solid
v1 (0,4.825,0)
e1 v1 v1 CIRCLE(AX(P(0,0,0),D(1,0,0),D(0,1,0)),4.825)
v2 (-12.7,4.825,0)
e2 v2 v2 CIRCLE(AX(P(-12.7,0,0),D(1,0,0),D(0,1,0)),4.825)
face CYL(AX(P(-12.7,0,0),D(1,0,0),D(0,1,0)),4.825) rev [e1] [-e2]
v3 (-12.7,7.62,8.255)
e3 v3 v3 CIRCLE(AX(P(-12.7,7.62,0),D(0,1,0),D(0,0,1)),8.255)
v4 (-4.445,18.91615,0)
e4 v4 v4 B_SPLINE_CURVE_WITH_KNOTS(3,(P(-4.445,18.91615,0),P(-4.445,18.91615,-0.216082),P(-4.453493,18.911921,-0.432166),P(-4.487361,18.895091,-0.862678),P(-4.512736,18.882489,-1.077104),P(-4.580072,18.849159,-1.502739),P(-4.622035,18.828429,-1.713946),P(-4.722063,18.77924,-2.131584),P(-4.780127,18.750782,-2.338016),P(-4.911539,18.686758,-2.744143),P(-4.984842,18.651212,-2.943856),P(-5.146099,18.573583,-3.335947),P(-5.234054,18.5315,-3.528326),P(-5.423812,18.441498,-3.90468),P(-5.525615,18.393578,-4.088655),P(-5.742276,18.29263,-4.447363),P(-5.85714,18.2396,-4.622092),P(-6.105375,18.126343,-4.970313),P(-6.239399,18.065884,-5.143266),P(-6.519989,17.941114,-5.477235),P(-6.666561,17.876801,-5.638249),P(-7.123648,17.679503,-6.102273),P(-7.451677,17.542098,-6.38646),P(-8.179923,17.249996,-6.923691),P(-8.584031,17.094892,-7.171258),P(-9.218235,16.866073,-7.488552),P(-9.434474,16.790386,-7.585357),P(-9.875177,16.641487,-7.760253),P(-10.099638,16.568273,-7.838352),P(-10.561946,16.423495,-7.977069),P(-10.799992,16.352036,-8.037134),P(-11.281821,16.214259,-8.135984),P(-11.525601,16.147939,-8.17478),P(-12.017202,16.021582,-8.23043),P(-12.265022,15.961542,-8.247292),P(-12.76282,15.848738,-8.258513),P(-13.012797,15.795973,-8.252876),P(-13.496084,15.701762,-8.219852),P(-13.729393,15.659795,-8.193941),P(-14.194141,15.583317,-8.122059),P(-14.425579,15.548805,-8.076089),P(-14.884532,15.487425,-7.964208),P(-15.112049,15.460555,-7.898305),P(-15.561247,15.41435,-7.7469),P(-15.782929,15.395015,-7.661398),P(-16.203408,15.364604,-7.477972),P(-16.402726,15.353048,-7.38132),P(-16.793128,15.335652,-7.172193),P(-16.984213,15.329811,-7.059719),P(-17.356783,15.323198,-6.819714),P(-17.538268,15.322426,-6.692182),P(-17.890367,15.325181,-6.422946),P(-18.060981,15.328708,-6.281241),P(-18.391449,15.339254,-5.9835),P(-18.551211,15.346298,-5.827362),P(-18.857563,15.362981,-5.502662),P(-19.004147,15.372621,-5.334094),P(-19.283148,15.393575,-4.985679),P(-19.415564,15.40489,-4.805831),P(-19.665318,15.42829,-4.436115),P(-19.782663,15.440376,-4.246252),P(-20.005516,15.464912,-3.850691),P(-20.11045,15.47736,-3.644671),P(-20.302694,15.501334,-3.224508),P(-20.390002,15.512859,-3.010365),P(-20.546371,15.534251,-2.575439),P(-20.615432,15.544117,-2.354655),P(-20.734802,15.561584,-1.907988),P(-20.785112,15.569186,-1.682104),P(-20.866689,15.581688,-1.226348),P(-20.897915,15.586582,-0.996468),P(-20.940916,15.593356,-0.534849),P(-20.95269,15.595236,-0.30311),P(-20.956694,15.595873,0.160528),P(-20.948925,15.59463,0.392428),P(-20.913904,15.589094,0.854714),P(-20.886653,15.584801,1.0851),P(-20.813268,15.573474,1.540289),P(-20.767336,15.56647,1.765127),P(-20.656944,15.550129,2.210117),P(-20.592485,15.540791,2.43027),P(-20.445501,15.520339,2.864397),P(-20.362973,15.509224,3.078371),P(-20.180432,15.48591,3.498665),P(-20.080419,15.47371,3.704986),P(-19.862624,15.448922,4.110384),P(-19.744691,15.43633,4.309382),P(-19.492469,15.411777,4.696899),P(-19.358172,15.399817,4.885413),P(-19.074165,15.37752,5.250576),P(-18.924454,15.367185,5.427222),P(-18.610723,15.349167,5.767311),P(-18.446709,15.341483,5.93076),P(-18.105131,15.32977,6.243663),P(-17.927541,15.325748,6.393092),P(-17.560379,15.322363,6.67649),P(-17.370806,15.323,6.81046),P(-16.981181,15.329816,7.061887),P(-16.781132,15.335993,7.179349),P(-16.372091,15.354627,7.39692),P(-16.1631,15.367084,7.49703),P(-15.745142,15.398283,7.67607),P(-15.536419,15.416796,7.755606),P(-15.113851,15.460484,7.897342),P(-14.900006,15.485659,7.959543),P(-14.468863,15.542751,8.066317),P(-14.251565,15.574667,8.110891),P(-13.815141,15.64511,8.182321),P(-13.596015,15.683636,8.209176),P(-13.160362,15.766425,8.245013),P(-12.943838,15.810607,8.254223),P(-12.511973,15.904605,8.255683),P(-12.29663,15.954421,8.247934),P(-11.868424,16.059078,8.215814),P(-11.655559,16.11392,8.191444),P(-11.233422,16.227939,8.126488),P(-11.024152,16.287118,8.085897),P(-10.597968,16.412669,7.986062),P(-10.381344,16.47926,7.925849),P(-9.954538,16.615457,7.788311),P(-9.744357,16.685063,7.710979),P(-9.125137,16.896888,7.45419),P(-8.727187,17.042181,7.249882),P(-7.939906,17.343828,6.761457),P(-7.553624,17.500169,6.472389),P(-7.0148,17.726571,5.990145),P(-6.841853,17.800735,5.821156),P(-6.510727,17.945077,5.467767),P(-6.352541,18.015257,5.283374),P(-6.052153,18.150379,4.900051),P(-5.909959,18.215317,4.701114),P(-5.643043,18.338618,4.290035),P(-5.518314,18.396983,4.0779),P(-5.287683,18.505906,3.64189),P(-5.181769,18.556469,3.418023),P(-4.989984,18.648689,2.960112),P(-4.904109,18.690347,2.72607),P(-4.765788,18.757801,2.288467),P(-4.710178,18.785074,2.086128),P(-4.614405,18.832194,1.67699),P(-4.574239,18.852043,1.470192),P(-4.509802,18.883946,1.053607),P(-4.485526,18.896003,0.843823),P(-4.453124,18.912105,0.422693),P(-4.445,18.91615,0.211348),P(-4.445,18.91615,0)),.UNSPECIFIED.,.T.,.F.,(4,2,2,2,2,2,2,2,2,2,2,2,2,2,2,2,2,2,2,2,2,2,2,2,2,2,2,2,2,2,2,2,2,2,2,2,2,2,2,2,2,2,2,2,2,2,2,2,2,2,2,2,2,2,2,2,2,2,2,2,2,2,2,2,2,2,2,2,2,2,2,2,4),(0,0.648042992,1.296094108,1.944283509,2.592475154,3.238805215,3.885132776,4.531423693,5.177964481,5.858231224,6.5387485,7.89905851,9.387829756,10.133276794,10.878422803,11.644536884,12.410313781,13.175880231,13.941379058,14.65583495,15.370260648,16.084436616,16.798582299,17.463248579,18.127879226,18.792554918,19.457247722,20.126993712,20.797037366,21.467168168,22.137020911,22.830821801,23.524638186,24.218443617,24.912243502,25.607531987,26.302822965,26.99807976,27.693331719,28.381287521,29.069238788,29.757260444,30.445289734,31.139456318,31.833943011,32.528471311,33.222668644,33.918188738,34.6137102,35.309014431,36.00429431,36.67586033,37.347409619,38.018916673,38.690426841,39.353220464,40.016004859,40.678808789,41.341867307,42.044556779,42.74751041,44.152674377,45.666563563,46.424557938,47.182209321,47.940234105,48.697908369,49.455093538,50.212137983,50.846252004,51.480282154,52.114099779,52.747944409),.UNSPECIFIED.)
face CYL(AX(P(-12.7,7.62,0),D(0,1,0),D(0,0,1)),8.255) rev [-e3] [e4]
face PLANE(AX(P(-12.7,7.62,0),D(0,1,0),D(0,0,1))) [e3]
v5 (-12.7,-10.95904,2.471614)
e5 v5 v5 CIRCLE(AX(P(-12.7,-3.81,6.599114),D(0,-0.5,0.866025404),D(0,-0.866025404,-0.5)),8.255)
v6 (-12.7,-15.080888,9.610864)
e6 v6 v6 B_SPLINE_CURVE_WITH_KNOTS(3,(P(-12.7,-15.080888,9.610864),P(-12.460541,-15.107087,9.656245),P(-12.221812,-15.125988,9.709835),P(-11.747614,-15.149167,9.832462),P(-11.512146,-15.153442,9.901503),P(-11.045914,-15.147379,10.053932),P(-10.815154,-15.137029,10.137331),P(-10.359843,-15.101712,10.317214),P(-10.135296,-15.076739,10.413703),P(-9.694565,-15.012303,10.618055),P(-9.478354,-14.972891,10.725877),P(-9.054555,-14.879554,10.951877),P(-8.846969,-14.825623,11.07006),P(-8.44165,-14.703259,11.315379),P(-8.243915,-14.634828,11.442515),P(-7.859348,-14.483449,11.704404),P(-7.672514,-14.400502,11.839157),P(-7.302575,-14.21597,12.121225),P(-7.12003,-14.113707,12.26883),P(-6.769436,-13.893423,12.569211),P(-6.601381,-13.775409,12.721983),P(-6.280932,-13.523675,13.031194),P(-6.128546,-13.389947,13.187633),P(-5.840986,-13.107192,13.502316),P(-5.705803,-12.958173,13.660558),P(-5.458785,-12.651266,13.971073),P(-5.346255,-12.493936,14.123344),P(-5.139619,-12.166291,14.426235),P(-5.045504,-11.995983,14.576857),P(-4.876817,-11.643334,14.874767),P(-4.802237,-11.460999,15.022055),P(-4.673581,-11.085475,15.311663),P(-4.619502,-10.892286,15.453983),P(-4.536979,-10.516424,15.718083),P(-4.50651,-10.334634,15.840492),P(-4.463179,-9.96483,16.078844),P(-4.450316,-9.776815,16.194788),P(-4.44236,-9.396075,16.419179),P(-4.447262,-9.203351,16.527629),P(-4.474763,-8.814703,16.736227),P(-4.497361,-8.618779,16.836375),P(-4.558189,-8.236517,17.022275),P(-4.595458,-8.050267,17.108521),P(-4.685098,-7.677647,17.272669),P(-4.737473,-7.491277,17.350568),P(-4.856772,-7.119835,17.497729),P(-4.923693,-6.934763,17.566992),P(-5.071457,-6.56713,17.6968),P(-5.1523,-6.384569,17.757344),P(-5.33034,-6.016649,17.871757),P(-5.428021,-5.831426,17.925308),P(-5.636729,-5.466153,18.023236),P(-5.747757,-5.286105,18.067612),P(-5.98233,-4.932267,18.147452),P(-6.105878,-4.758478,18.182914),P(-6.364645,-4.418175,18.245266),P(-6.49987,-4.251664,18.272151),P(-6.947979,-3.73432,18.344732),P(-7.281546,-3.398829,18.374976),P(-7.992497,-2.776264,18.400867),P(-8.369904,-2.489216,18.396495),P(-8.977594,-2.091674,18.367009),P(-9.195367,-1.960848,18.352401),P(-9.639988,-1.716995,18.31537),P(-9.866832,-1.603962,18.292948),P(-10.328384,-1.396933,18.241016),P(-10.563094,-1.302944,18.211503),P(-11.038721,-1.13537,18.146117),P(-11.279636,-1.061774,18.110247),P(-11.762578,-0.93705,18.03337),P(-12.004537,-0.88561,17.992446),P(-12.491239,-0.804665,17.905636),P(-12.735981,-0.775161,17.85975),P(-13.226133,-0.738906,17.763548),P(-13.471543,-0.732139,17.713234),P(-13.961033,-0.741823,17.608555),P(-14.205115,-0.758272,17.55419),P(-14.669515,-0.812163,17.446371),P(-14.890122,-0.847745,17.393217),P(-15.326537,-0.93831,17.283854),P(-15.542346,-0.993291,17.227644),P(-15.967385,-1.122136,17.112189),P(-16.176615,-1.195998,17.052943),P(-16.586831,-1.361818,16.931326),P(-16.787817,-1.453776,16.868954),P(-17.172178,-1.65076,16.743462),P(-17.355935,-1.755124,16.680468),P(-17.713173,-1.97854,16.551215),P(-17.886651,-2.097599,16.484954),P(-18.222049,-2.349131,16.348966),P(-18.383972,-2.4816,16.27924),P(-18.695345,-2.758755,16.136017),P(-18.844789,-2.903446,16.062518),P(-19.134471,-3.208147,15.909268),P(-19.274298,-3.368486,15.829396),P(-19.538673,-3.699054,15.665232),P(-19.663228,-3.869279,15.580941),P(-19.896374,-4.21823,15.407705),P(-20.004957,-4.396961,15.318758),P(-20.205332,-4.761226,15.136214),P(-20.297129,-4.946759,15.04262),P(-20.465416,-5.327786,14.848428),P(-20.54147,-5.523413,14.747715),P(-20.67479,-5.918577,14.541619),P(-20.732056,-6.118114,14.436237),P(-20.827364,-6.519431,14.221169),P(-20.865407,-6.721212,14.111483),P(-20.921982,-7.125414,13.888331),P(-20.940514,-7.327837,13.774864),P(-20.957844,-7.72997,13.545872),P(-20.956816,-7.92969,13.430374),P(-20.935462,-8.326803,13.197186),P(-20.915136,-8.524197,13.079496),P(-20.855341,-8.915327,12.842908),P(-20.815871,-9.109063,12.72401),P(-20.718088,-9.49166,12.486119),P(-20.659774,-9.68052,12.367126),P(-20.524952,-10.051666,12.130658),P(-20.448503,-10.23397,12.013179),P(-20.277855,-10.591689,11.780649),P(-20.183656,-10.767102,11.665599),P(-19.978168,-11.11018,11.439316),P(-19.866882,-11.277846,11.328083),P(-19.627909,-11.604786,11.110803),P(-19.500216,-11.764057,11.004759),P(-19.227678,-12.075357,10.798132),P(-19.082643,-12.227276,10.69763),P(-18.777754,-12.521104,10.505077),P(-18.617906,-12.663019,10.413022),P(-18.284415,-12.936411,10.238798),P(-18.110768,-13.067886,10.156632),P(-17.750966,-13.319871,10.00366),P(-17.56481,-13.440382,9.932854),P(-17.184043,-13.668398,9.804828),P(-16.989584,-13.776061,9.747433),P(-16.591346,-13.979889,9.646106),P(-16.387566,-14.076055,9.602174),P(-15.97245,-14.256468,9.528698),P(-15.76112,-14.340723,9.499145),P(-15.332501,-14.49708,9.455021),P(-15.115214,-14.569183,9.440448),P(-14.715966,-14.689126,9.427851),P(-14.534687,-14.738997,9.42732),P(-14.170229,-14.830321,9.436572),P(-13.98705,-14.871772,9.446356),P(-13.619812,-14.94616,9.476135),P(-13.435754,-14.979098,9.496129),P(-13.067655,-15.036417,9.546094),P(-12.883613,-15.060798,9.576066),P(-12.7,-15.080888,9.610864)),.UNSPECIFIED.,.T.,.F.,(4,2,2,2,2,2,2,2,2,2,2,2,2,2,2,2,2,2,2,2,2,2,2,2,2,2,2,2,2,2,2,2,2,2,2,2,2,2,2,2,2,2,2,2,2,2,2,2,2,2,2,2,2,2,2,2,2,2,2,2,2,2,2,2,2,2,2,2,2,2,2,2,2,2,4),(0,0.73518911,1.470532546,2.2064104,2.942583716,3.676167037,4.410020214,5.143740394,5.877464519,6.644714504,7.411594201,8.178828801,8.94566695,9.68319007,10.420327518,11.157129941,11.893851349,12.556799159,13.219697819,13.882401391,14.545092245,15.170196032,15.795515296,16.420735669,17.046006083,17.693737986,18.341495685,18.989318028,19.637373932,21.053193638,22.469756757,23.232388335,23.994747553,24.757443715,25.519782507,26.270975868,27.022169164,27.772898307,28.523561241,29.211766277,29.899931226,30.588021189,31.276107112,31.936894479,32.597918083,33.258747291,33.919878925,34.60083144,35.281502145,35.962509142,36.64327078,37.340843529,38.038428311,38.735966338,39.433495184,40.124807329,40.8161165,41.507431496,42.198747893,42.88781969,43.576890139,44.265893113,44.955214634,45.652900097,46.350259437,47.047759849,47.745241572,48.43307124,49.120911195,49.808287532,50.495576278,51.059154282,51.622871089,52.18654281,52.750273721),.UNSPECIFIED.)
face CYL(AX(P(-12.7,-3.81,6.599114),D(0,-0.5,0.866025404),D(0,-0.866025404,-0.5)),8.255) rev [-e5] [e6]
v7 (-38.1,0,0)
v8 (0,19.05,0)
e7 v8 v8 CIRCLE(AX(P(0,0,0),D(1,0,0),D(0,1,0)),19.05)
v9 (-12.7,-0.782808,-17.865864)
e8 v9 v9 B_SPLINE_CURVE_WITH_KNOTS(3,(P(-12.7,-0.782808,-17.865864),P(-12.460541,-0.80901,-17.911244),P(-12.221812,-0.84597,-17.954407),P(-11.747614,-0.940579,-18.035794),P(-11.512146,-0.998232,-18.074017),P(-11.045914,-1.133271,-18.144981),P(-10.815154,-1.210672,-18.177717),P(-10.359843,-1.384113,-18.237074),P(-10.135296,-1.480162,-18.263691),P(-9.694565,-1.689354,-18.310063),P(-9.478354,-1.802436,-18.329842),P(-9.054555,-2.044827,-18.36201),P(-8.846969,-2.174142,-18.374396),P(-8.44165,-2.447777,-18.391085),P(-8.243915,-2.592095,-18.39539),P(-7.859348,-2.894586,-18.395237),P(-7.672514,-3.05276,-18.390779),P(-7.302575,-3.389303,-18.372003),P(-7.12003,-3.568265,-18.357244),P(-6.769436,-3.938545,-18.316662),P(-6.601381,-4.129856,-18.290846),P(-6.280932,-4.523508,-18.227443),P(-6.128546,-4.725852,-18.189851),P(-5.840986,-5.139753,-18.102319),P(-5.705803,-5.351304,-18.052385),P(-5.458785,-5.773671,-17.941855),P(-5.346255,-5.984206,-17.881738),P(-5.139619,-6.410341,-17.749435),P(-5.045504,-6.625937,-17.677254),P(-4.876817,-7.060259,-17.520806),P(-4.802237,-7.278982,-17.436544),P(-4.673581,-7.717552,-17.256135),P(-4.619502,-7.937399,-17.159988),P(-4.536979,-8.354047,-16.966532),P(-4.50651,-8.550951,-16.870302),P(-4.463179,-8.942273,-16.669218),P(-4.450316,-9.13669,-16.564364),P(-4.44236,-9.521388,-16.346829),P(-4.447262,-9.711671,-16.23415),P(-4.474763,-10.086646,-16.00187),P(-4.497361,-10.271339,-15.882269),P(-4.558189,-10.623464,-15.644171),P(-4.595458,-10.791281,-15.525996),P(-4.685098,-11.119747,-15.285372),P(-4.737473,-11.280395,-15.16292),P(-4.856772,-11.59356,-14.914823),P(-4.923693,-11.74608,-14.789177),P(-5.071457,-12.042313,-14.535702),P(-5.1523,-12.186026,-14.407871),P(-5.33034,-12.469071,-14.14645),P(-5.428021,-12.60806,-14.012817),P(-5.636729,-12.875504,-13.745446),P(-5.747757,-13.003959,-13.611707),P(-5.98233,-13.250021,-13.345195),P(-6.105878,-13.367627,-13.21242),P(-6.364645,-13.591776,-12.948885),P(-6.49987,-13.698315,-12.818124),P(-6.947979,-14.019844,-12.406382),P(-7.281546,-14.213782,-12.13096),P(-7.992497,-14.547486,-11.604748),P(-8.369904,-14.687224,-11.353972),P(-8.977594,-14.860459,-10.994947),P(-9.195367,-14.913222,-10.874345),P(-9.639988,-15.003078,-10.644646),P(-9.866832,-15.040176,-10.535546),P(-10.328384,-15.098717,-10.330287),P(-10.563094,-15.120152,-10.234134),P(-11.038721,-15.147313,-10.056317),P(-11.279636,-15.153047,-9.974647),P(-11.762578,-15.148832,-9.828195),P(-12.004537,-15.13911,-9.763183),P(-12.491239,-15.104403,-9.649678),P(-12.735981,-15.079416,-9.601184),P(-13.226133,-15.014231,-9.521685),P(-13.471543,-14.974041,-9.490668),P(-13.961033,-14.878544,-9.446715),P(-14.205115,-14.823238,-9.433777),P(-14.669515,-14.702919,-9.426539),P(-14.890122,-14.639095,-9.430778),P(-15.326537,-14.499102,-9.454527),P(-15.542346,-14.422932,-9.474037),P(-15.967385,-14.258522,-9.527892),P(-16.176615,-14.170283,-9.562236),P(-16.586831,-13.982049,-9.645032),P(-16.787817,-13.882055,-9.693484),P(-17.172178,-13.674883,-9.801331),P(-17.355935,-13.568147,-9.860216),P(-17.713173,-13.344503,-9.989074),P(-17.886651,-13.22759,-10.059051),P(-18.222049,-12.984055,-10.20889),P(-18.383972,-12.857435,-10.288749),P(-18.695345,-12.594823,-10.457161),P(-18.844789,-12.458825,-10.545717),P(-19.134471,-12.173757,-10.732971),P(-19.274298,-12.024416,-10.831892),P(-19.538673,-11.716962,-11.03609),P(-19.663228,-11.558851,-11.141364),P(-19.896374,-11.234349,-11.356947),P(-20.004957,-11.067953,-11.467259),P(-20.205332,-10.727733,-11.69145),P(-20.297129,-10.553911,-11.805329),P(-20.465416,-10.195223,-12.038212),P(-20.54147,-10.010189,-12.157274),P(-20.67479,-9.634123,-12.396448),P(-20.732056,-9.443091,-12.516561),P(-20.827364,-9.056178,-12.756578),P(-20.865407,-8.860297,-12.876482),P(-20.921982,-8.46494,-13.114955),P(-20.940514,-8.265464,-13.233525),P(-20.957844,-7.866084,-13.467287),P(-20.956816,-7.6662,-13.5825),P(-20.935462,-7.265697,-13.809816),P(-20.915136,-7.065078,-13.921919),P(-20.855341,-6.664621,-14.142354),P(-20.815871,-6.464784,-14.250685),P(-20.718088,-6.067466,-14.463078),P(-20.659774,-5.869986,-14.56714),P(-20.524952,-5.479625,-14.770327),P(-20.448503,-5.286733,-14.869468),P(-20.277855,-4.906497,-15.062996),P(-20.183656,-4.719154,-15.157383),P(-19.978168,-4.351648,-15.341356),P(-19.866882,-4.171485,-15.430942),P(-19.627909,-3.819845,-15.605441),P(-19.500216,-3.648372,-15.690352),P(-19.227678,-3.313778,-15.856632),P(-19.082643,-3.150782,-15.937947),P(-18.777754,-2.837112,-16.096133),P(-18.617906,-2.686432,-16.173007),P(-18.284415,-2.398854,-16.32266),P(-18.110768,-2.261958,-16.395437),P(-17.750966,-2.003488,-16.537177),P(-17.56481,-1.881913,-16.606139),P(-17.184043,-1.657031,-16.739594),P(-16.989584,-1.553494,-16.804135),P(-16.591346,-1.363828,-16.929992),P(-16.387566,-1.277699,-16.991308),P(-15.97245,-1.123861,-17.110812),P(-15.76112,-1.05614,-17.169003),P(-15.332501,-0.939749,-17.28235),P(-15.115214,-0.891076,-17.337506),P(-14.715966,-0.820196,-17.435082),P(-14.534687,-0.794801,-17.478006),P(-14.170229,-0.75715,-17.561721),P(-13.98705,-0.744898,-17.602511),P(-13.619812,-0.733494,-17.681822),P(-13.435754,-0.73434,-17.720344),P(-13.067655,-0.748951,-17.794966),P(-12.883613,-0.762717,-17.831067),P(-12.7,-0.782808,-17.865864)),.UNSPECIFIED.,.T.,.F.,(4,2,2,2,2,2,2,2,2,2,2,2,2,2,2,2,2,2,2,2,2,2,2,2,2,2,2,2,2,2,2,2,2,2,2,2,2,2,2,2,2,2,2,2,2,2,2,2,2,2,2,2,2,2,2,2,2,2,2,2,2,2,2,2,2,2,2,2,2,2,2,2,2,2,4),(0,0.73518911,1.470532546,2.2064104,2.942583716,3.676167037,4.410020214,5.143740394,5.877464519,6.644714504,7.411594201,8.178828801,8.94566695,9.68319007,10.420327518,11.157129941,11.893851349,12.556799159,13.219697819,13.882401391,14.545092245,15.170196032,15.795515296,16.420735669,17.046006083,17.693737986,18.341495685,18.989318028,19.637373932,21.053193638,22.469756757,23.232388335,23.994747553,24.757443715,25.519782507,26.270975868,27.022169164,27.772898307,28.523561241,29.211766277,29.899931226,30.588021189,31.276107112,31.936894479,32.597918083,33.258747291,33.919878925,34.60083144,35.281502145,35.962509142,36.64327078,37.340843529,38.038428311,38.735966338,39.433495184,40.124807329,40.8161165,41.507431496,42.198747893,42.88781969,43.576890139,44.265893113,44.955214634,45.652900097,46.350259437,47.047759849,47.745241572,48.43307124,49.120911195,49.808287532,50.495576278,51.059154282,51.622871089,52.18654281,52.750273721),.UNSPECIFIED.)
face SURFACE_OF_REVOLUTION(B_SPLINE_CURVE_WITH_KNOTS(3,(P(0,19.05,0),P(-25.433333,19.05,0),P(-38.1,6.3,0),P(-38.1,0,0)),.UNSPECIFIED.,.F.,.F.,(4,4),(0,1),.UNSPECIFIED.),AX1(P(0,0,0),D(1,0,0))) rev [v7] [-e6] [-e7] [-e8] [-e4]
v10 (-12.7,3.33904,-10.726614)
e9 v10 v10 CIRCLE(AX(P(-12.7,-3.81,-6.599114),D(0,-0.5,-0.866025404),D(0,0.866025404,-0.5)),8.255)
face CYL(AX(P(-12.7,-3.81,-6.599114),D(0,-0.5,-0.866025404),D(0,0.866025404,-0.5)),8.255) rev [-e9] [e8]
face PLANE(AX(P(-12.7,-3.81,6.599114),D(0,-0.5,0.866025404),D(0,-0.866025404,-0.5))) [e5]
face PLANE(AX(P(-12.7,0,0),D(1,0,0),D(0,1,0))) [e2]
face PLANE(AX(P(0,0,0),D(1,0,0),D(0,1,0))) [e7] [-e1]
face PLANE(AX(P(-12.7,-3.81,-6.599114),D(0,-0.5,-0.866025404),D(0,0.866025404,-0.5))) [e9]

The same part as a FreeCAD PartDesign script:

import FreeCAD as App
import Part
import Sketcher
from FreeCAD import Vector
Q = App.Units.Quantity

doc = App.newDocument("Part")
body = doc.addObject("PartDesign::Body", "Body")

# Sketch on XY plane
sketch1 = body.newObject("Sketcher::SketchObject", "Sketch")
sketch1.AttachmentSupport = (doc.getObject("XY_Plane"), [""])
sketch1.MapMode = "FlatFace"
sketch1.addGeometry(Part.LineSegment(Vector(-38.1, 0, 0), Vector(0, 0, 0)), False)
sketch1.addGeometry(Part.LineSegment(Vector(0, 0, 0), Vector(0, 19.05, 0)), False)
sketch1.addGeometry(Part.BSplineCurve([Vector(0, 19.05, 0), Vector(-25.433333, 19.05, 0), Vector(-38.1, 6.3, 0), Vector(-38.1, 0, 0)], [4, 4], [0, 1], False, 3, [1, 1, 1, 1], False), False)
sketch1.addConstraint(Sketcher.Constraint("Block", 2))
sketch1.addConstraint(Sketcher.Constraint("Coincident", 0, 2, 1, 1))
sketch1.addConstraint(Sketcher.Constraint("Coincident", 1, 2, 2, 1))
sketch1.addConstraint(Sketcher.Constraint("Coincident", 2, 2, 0, 1))
sketch1.addConstraint(Sketcher.Constraint("Horizontal", 0))
sketch1.addConstraint(Sketcher.Constraint("Vertical", 1))
revolution = body.newObject("PartDesign::Revolution", "Revolution")
revolution.Profile = sketch1
revolution.ReferenceAxis = (sketch1, ["H_Axis"])
revolution.Angle = 360

# Sketch on XZ plane
sketch2 = body.newObject("Sketcher::SketchObject", "Sketch001")
sketch2.AttachmentSupport = (doc.getObject("XZ_Plane"), [""])
sketch2.MapMode = "FlatFace"
sketch2.AttachmentOffset = App.Placement(Vector(0, 0, -0.75 * 25.4), App.Rotation())
sketch2.addGeometry(Part.Circle(Vector(-12.7, 0, 0), Vector(0, 0, 1), 8.255), False)
sketch2.addConstraint(Sketcher.Constraint("PointOnObject", 0, 3, -1))
sketch2.addConstraint(Sketcher.Constraint("Diameter", 0, Q("0.65 in")))
sketch2.addConstraint(Sketcher.Constraint("DistanceX", 0, 3, -1, 1, Q("0.5 in")))
pocket1 = body.newObject("PartDesign::Pocket", "Pocket")
pocket1.Profile = sketch2
pocket1.Length = Q("0.45 in")
pocket1.Reversed = True
doc.recompute()

polarpattern = body.newObject("PartDesign::PolarPattern", "PolarPattern")
polarpattern.Originals = [pocket1]
polarpattern.Axis = (doc.getObject("X_Axis"), [""])
polarpattern.Angle = 360
polarpattern.Occurrences = 3
body.Tip = polarpattern

# Sketch on YZ plane
sketch3 = body.newObject("Sketcher::SketchObject", "Sketch002")
sketch3.AttachmentSupport = (doc.getObject("YZ_Plane"), [""])
sketch3.MapMode = "FlatFace"
sketch3.addGeometry(Part.Circle(Vector(0, 0, 0), Vector(0, 0, 1), 4.825), False)
sketch3.addConstraint(Sketcher.Constraint("Coincident", 0, 3, -1, 1))
sketch3.addConstraint(Sketcher.Constraint("Diameter", 0, Q("9.65 mm")))
pocket2 = body.newObject("PartDesign::Pocket", "Pocket001")
pocket2.Profile = sketch3
pocket2.Length = Q("0.5 in")

doc.recompute()
